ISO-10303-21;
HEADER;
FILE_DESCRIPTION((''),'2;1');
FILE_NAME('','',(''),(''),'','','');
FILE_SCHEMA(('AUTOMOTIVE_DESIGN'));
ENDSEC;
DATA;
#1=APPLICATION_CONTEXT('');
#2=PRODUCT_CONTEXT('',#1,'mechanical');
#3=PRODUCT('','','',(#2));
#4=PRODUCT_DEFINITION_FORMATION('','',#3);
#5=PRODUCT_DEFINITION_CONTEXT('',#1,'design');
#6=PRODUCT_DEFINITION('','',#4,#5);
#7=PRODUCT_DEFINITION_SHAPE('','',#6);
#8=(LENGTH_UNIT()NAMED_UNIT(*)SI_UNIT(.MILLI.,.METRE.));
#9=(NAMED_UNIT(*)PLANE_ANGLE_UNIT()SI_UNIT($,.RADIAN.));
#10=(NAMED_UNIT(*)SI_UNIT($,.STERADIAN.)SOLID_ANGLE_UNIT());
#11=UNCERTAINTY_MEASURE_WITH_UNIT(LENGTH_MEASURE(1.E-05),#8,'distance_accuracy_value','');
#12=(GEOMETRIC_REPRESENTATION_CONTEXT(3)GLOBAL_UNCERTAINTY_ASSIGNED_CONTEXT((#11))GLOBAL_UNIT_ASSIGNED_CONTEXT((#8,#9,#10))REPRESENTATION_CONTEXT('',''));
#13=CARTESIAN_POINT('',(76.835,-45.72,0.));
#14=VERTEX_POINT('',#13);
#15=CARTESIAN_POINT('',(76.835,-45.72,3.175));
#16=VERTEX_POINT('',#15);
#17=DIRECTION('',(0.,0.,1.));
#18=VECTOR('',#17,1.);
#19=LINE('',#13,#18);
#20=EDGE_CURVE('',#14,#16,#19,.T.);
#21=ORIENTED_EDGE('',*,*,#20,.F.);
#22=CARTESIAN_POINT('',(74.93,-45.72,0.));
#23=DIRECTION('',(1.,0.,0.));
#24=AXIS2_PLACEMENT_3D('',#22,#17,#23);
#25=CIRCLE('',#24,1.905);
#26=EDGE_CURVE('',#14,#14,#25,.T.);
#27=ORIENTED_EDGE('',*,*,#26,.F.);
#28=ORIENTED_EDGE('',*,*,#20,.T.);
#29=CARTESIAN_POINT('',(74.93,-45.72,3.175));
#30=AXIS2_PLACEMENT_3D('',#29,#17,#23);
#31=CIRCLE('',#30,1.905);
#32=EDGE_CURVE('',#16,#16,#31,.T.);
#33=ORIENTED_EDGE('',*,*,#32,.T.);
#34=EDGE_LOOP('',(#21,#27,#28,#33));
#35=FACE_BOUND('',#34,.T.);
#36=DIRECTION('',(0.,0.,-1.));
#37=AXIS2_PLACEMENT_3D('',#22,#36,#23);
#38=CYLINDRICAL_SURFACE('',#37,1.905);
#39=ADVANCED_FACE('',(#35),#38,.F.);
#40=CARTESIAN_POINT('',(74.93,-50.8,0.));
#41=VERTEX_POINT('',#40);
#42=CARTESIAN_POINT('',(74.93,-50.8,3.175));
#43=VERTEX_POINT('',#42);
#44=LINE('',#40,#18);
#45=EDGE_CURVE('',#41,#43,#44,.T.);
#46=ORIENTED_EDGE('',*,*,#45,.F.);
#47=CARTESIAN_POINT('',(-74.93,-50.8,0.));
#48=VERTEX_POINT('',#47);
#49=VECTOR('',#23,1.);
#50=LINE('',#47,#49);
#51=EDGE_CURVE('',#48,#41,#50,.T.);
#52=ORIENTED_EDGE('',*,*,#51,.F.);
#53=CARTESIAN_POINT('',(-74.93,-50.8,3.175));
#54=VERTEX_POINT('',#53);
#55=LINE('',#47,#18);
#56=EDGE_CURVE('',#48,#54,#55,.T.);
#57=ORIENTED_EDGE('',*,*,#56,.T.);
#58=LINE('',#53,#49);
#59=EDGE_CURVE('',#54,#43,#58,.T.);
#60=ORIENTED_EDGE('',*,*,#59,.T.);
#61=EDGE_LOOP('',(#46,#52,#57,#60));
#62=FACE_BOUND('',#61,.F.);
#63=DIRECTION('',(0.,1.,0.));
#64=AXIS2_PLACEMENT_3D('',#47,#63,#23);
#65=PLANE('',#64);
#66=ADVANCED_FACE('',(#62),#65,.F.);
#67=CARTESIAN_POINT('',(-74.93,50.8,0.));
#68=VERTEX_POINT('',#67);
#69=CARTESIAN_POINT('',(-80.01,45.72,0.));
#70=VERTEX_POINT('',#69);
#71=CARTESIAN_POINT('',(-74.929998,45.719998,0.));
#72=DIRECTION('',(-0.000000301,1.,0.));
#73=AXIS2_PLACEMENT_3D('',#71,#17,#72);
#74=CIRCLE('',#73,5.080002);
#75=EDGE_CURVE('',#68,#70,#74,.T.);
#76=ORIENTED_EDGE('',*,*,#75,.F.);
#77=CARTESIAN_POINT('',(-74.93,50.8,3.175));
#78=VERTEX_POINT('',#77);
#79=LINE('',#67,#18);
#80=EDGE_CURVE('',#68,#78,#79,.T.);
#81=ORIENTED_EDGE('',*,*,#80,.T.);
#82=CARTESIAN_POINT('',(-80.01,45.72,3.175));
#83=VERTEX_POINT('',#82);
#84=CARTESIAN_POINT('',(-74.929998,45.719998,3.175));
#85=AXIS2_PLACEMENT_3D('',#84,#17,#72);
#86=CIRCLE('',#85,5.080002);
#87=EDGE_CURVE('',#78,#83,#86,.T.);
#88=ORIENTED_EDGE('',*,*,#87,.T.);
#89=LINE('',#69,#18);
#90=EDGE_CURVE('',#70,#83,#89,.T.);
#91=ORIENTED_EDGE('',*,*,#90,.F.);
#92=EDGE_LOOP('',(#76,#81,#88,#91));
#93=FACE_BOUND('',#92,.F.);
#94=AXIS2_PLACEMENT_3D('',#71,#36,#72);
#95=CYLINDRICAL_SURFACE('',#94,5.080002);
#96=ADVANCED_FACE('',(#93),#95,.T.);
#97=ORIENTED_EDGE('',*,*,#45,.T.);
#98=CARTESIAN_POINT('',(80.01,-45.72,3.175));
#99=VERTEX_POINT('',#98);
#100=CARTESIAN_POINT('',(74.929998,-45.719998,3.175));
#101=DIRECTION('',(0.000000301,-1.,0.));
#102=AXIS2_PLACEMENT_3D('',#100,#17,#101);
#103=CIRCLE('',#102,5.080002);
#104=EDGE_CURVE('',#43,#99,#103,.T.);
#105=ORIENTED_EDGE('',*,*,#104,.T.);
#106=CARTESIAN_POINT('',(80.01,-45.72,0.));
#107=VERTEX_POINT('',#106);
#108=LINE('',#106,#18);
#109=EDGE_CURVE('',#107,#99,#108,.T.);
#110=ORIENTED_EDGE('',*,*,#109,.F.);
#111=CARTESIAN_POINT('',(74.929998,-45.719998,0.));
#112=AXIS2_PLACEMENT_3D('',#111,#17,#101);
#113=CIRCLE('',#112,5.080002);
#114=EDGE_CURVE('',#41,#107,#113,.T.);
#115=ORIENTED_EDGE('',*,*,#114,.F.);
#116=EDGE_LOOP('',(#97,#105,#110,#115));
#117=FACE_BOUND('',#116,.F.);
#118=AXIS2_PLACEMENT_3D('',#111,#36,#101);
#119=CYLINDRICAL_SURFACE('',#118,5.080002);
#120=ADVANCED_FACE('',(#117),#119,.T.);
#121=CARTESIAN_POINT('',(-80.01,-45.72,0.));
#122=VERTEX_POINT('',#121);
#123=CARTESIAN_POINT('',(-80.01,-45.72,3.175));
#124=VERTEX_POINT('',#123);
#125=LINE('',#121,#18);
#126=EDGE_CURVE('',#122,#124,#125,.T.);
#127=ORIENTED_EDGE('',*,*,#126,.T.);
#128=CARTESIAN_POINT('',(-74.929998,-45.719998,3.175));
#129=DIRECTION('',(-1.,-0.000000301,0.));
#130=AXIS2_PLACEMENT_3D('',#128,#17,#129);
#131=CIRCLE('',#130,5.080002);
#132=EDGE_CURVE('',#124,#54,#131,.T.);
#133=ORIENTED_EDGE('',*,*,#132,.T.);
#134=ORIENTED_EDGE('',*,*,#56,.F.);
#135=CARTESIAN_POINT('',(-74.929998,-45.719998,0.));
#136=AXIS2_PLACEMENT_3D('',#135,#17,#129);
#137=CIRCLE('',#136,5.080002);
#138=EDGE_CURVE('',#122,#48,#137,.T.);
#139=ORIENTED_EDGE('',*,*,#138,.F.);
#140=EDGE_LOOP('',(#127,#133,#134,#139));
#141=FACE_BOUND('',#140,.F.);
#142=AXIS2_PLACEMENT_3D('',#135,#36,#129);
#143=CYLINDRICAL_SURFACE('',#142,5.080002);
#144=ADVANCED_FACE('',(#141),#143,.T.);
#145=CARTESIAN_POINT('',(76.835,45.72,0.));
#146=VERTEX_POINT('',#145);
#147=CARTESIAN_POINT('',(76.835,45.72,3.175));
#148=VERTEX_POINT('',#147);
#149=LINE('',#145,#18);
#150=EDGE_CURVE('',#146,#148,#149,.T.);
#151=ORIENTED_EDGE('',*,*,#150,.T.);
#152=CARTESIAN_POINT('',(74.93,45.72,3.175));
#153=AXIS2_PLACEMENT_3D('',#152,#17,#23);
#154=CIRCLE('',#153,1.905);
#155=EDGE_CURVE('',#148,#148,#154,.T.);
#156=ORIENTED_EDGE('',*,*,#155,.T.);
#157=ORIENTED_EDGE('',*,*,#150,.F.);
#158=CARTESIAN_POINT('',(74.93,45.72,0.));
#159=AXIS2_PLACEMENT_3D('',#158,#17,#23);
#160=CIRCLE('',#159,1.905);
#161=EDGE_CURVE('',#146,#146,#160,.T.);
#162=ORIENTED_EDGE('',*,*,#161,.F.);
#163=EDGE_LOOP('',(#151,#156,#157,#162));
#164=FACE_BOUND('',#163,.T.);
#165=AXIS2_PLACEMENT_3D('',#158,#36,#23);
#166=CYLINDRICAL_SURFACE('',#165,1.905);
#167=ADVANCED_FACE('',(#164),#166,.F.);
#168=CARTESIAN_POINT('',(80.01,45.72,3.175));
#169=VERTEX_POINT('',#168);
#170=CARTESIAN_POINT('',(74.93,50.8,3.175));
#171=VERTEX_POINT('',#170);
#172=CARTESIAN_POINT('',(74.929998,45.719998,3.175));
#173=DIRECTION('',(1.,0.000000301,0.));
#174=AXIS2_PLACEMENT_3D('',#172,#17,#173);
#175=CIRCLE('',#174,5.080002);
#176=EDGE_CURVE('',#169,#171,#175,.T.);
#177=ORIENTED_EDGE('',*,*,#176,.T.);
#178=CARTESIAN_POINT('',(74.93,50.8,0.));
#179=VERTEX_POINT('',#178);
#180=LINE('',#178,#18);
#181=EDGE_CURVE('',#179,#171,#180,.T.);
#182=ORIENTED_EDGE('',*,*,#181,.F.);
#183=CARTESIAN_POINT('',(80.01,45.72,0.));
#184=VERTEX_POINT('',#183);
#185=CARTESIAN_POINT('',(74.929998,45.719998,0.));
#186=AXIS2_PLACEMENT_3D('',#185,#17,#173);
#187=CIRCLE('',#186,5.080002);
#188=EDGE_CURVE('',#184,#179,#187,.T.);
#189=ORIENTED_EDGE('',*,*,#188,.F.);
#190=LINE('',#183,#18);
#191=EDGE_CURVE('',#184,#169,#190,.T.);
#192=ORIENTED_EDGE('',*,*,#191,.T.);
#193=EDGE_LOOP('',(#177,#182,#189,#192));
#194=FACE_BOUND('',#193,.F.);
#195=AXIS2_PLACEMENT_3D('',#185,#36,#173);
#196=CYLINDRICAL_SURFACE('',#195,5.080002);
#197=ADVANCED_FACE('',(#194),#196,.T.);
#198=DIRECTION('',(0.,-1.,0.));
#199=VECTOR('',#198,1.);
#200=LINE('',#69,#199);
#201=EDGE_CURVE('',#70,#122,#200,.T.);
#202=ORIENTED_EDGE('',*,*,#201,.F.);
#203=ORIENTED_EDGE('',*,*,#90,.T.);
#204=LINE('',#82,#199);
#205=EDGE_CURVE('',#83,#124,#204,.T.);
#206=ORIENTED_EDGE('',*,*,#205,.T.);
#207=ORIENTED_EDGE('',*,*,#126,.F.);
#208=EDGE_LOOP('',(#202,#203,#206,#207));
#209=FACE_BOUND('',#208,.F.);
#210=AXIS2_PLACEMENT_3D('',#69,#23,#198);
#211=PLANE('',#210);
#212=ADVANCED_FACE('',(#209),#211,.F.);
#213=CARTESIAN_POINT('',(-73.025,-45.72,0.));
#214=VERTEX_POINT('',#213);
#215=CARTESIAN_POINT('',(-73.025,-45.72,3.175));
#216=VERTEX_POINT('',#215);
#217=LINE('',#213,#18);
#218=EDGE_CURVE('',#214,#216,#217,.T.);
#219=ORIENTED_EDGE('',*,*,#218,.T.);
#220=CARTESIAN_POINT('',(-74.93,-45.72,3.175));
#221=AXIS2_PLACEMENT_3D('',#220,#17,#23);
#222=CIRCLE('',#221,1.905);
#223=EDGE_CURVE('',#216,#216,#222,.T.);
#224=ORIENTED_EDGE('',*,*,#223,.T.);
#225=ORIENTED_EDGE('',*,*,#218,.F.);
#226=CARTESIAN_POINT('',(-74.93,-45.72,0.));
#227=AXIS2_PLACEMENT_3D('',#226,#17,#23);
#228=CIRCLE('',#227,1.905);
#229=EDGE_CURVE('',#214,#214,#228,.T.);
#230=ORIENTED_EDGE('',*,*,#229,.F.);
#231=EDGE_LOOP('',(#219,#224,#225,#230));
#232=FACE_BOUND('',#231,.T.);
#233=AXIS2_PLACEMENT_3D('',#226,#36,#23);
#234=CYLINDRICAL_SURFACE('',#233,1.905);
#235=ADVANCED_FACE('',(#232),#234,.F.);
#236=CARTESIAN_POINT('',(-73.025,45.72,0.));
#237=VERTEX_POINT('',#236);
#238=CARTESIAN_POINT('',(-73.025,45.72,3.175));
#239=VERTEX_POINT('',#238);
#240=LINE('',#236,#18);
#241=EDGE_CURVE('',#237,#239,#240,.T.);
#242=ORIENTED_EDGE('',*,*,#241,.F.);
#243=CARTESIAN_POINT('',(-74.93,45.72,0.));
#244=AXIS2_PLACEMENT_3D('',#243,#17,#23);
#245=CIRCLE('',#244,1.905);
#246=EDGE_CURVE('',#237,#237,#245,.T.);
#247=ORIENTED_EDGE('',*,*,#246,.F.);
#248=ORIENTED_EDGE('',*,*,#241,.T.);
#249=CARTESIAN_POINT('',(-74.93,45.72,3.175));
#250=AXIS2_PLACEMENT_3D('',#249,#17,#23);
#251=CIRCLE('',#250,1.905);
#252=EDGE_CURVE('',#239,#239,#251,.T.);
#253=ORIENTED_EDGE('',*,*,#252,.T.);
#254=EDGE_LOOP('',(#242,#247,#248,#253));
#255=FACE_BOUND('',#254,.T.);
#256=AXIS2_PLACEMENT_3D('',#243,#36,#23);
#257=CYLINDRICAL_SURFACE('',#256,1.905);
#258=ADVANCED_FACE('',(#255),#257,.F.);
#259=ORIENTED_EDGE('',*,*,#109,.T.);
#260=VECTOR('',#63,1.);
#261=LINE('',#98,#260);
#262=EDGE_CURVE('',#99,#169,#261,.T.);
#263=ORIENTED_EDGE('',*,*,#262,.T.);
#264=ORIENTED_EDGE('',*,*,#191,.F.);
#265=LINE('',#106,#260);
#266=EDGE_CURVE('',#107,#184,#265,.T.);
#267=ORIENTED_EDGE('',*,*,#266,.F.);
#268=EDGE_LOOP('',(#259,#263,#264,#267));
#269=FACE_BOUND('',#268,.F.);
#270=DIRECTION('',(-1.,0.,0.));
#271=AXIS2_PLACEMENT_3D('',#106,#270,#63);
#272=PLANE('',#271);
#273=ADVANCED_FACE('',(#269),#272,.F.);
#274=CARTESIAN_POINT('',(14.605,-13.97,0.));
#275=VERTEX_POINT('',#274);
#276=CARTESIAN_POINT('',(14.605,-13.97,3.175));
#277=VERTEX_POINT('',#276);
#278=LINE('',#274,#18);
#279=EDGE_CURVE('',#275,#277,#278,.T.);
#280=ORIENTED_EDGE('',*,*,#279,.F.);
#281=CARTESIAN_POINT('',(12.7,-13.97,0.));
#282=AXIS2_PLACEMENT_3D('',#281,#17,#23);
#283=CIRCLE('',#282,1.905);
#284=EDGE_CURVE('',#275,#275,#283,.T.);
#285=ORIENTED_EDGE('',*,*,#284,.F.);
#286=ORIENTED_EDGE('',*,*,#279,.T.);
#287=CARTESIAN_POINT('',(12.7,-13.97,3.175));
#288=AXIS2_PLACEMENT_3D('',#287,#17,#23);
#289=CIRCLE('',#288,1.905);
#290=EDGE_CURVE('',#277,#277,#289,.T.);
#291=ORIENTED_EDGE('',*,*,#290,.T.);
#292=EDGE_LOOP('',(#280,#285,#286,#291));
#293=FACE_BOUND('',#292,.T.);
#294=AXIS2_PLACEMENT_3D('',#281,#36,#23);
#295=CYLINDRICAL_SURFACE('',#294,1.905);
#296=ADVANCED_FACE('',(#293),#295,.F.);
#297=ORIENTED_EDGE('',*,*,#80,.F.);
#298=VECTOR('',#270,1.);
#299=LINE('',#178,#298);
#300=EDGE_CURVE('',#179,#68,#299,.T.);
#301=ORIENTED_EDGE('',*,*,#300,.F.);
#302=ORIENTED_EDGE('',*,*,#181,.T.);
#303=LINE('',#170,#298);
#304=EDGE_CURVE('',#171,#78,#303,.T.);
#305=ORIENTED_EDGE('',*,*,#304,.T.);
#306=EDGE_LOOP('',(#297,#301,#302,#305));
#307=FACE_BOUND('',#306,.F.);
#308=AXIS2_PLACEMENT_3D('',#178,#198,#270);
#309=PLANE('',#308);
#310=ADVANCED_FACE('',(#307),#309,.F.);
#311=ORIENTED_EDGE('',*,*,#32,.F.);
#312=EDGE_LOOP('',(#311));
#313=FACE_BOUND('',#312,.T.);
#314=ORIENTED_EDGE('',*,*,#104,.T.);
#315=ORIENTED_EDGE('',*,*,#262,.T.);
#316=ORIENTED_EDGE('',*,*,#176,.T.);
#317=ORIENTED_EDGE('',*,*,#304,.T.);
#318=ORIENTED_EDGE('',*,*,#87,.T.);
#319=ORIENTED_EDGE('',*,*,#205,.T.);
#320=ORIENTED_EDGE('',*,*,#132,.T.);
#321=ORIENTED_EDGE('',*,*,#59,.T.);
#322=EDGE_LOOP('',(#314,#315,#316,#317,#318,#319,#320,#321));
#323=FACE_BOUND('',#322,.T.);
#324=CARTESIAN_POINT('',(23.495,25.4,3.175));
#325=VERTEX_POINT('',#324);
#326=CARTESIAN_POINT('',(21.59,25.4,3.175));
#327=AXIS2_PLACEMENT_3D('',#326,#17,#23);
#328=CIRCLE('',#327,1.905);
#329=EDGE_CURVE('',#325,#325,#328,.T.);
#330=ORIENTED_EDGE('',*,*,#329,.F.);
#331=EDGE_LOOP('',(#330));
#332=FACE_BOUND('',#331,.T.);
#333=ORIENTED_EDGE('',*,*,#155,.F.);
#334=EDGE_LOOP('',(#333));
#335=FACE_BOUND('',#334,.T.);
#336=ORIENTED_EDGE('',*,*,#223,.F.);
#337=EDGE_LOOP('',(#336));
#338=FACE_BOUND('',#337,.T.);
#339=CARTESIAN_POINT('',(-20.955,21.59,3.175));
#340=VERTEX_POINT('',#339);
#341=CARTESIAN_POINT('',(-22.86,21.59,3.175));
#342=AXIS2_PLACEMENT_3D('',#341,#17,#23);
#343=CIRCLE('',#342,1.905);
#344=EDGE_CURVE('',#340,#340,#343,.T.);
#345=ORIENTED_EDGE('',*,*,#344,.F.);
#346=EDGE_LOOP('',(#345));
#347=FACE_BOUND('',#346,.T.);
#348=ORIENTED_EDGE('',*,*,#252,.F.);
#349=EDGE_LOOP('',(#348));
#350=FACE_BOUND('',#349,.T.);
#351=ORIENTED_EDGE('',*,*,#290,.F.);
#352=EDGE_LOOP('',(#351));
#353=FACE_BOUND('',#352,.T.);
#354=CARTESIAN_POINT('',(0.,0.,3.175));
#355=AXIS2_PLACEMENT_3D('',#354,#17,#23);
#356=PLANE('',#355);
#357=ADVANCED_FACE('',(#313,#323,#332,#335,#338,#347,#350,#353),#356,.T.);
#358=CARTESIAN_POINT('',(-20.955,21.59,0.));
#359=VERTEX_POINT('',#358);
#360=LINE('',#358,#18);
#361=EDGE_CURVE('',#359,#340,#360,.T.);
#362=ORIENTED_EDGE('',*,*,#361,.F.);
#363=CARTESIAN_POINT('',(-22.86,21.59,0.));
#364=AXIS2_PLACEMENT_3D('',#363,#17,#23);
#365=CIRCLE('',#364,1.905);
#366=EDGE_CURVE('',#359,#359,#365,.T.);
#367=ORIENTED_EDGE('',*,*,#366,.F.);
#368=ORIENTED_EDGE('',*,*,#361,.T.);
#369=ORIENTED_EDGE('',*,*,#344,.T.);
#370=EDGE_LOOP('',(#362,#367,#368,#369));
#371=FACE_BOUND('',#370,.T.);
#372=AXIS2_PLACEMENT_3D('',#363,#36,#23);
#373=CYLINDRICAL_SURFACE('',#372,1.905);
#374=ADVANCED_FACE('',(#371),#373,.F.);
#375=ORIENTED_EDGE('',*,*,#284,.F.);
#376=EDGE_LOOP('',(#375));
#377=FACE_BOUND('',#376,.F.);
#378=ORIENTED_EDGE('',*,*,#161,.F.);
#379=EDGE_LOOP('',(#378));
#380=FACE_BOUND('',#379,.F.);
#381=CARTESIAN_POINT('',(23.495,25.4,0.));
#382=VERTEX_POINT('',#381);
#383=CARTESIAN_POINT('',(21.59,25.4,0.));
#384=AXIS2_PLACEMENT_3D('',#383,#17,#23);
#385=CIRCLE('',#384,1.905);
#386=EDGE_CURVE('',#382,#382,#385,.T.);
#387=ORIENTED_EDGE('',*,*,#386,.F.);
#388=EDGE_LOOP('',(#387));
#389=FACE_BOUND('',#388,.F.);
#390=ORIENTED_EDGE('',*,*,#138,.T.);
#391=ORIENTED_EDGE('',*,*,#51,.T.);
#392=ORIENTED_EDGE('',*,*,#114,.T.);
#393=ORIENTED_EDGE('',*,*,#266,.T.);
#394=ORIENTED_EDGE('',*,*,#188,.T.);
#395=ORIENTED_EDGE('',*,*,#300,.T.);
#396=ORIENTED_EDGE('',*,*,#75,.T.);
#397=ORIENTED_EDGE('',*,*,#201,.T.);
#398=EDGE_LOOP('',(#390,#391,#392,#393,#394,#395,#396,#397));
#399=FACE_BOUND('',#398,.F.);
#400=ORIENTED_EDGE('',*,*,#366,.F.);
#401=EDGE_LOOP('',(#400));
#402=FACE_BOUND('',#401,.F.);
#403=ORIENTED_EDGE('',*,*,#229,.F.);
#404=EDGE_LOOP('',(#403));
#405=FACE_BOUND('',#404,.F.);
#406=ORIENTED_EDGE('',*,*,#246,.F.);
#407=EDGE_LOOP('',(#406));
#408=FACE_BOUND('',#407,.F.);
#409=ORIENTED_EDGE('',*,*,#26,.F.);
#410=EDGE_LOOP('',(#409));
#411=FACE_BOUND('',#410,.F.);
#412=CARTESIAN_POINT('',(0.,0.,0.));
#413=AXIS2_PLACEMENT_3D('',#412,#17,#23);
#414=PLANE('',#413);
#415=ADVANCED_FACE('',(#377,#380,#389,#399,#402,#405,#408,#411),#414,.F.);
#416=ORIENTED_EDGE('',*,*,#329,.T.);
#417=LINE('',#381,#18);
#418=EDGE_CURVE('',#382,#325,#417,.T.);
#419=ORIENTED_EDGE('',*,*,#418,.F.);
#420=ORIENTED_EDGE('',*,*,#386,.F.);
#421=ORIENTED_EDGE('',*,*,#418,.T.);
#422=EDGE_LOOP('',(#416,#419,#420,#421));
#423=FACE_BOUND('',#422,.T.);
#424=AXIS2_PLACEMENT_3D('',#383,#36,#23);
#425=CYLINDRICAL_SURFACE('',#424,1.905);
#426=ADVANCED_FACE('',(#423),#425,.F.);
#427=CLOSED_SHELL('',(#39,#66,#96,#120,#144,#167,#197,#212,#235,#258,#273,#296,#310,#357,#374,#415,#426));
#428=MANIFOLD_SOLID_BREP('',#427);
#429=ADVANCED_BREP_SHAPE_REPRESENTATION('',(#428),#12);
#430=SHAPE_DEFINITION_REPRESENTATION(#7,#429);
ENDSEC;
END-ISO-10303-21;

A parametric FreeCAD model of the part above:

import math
import FreeCAD as App
import Part
import Sketcher

V = App.Vector
Q = App.Units.Quantity

doc = App.newDocument("Part")
body = doc.addObject("PartDesign::Body", "Body")

sketch1 = body.newObject("Sketcher::SketchObject", "Sketch")
sketch1.AttachmentSupport = (doc.getObject("XY_Plane"), [""])
sketch1.MapMode = "FlatFace"
sketch1.addGeometry([
    Part.LineSegment(V(74.93, 50.8, 0), V(-74.93, 50.8, 0)),
    Part.ArcOfCircle(Part.Circle(V(-74.929998, 45.719998, 0), V(0, 0, 1), 5.080002), math.radians(90.000017), math.radians(179.999983)),
    Part.LineSegment(V(-80.01, 45.72, 0), V(-80.01, -45.72, 0)),
    Part.ArcOfCircle(Part.Circle(V(-74.929998, -45.719998, 0), V(0, 0, 1), 5.080002), math.radians(-179.999983), math.radians(-90.000017)),
    Part.LineSegment(V(-74.93, -50.8, 0), V(74.93, -50.8, 0)),
    Part.ArcOfCircle(Part.Circle(V(74.929998, -45.719998, 0), V(0, 0, 1), 5.080002), math.radians(-89.999983), math.radians(-0.000017)),
    Part.LineSegment(V(80.01, -45.72, 0), V(80.01, 45.72, 0)),
    Part.ArcOfCircle(Part.Circle(V(74.929998, 45.719998, 0), V(0, 0, 1), 5.080002), math.radians(0.000017), math.radians(89.999983)),
    Part.Circle(V(-74.93, -45.72, 0), V(0, 0, 1), 1.905),
    Part.Circle(V(74.93, -45.72, 0), V(0, 0, 1), 1.905),
    Part.Circle(V(12.7, -13.97, 0), V(0, 0, 1), 1.905),
    Part.Circle(V(-22.86, 21.59, 0), V(0, 0, 1), 1.905),
    Part.Circle(V(-74.93, 45.72, 0), V(0, 0, 1), 1.905),
    Part.Circle(V(21.59, 25.4, 0), V(0, 0, 1), 1.905),
    Part.Circle(V(74.93, 45.72, 0), V(0, 0, 1), 1.905),
], False)
sketch1.addConstraint([
    Sketcher.Constraint("Tangent", 0, 2, 1, 1),
    Sketcher.Constraint("Tangent", 1, 2, 2, 1),
    Sketcher.Constraint("Tangent", 2, 2, 3, 1),
    Sketcher.Constraint("Tangent", 3, 2, 4, 1),
    Sketcher.Constraint("Tangent", 4, 2, 5, 1),
    Sketcher.Constraint("Tangent", 5, 2, 6, 1),
    Sketcher.Constraint("Tangent", 6, 2, 7, 1),
    Sketcher.Constraint("Tangent", 7, 2, 0, 1),
    Sketcher.Constraint("Horizontal", 0),
    Sketcher.Constraint("Vertical", 2),
    Sketcher.Constraint("Horizontal", 4),
    Sketcher.Constraint("Vertical", 6),
    Sketcher.Constraint("Coincident", 8, 3, 3, 3),
    Sketcher.Constraint("Coincident", 9, 3, 5, 3),
    Sketcher.Constraint("Coincident", 12, 3, 1, 3),
    Sketcher.Constraint("Coincident", 14, 3, 7, 3),
    Sketcher.Constraint("Equal", 1, 3),
    Sketcher.Constraint("Equal", 3, 5),
    Sketcher.Constraint("Equal", 5, 7),
    Sketcher.Constraint("Equal", 8, 9),
    Sketcher.Constraint("Equal", 9, 10),
    Sketcher.Constraint("Equal", 10, 11),
    Sketcher.Constraint("Equal", 11, 12),
    Sketcher.Constraint("Equal", 12, 13),
    Sketcher.Constraint("Equal", 13, 14),
    Sketcher.Constraint("Symmetric", 1, 3, 5, 3, -1, 1),
    Sketcher.Constraint("Radius", 1, Q("0.2000001 in")),
    Sketcher.Constraint("Diameter", 8, Q("0.15 in")),
    Sketcher.Constraint("DistanceX", 0, 2, 0, 1, Q("5.9 in")),
    Sketcher.Constraint("DistanceY", 2, 2, 2, 1, Q("3.6 in")),
    Sketcher.Constraint("DistanceY", -1, 1, 13, 3, Q("1 in")),
    Sketcher.Constraint("DistanceX", -1, 1, 10, 3, Q("0.5 in")),
    Sketcher.Constraint("DistanceX", 11, 3, -1, 1, Q("0.9 in")),
    Sketcher.Constraint("DistanceY", 10, 3, 11, 3, Q("1.4 in")),
    Sketcher.Constraint("DistanceX", 13, 3, 7, 3, Q("2.0999999 in")),
    Sketcher.Constraint("DistanceY", 10, 3, -1, 1, Q("0.55 in")),
])
pad1 = body.newObject("PartDesign::Pad", "Pad")
pad1.Profile = sketch1
pad1.Length = Q("0.125 in")

doc.recompute()
